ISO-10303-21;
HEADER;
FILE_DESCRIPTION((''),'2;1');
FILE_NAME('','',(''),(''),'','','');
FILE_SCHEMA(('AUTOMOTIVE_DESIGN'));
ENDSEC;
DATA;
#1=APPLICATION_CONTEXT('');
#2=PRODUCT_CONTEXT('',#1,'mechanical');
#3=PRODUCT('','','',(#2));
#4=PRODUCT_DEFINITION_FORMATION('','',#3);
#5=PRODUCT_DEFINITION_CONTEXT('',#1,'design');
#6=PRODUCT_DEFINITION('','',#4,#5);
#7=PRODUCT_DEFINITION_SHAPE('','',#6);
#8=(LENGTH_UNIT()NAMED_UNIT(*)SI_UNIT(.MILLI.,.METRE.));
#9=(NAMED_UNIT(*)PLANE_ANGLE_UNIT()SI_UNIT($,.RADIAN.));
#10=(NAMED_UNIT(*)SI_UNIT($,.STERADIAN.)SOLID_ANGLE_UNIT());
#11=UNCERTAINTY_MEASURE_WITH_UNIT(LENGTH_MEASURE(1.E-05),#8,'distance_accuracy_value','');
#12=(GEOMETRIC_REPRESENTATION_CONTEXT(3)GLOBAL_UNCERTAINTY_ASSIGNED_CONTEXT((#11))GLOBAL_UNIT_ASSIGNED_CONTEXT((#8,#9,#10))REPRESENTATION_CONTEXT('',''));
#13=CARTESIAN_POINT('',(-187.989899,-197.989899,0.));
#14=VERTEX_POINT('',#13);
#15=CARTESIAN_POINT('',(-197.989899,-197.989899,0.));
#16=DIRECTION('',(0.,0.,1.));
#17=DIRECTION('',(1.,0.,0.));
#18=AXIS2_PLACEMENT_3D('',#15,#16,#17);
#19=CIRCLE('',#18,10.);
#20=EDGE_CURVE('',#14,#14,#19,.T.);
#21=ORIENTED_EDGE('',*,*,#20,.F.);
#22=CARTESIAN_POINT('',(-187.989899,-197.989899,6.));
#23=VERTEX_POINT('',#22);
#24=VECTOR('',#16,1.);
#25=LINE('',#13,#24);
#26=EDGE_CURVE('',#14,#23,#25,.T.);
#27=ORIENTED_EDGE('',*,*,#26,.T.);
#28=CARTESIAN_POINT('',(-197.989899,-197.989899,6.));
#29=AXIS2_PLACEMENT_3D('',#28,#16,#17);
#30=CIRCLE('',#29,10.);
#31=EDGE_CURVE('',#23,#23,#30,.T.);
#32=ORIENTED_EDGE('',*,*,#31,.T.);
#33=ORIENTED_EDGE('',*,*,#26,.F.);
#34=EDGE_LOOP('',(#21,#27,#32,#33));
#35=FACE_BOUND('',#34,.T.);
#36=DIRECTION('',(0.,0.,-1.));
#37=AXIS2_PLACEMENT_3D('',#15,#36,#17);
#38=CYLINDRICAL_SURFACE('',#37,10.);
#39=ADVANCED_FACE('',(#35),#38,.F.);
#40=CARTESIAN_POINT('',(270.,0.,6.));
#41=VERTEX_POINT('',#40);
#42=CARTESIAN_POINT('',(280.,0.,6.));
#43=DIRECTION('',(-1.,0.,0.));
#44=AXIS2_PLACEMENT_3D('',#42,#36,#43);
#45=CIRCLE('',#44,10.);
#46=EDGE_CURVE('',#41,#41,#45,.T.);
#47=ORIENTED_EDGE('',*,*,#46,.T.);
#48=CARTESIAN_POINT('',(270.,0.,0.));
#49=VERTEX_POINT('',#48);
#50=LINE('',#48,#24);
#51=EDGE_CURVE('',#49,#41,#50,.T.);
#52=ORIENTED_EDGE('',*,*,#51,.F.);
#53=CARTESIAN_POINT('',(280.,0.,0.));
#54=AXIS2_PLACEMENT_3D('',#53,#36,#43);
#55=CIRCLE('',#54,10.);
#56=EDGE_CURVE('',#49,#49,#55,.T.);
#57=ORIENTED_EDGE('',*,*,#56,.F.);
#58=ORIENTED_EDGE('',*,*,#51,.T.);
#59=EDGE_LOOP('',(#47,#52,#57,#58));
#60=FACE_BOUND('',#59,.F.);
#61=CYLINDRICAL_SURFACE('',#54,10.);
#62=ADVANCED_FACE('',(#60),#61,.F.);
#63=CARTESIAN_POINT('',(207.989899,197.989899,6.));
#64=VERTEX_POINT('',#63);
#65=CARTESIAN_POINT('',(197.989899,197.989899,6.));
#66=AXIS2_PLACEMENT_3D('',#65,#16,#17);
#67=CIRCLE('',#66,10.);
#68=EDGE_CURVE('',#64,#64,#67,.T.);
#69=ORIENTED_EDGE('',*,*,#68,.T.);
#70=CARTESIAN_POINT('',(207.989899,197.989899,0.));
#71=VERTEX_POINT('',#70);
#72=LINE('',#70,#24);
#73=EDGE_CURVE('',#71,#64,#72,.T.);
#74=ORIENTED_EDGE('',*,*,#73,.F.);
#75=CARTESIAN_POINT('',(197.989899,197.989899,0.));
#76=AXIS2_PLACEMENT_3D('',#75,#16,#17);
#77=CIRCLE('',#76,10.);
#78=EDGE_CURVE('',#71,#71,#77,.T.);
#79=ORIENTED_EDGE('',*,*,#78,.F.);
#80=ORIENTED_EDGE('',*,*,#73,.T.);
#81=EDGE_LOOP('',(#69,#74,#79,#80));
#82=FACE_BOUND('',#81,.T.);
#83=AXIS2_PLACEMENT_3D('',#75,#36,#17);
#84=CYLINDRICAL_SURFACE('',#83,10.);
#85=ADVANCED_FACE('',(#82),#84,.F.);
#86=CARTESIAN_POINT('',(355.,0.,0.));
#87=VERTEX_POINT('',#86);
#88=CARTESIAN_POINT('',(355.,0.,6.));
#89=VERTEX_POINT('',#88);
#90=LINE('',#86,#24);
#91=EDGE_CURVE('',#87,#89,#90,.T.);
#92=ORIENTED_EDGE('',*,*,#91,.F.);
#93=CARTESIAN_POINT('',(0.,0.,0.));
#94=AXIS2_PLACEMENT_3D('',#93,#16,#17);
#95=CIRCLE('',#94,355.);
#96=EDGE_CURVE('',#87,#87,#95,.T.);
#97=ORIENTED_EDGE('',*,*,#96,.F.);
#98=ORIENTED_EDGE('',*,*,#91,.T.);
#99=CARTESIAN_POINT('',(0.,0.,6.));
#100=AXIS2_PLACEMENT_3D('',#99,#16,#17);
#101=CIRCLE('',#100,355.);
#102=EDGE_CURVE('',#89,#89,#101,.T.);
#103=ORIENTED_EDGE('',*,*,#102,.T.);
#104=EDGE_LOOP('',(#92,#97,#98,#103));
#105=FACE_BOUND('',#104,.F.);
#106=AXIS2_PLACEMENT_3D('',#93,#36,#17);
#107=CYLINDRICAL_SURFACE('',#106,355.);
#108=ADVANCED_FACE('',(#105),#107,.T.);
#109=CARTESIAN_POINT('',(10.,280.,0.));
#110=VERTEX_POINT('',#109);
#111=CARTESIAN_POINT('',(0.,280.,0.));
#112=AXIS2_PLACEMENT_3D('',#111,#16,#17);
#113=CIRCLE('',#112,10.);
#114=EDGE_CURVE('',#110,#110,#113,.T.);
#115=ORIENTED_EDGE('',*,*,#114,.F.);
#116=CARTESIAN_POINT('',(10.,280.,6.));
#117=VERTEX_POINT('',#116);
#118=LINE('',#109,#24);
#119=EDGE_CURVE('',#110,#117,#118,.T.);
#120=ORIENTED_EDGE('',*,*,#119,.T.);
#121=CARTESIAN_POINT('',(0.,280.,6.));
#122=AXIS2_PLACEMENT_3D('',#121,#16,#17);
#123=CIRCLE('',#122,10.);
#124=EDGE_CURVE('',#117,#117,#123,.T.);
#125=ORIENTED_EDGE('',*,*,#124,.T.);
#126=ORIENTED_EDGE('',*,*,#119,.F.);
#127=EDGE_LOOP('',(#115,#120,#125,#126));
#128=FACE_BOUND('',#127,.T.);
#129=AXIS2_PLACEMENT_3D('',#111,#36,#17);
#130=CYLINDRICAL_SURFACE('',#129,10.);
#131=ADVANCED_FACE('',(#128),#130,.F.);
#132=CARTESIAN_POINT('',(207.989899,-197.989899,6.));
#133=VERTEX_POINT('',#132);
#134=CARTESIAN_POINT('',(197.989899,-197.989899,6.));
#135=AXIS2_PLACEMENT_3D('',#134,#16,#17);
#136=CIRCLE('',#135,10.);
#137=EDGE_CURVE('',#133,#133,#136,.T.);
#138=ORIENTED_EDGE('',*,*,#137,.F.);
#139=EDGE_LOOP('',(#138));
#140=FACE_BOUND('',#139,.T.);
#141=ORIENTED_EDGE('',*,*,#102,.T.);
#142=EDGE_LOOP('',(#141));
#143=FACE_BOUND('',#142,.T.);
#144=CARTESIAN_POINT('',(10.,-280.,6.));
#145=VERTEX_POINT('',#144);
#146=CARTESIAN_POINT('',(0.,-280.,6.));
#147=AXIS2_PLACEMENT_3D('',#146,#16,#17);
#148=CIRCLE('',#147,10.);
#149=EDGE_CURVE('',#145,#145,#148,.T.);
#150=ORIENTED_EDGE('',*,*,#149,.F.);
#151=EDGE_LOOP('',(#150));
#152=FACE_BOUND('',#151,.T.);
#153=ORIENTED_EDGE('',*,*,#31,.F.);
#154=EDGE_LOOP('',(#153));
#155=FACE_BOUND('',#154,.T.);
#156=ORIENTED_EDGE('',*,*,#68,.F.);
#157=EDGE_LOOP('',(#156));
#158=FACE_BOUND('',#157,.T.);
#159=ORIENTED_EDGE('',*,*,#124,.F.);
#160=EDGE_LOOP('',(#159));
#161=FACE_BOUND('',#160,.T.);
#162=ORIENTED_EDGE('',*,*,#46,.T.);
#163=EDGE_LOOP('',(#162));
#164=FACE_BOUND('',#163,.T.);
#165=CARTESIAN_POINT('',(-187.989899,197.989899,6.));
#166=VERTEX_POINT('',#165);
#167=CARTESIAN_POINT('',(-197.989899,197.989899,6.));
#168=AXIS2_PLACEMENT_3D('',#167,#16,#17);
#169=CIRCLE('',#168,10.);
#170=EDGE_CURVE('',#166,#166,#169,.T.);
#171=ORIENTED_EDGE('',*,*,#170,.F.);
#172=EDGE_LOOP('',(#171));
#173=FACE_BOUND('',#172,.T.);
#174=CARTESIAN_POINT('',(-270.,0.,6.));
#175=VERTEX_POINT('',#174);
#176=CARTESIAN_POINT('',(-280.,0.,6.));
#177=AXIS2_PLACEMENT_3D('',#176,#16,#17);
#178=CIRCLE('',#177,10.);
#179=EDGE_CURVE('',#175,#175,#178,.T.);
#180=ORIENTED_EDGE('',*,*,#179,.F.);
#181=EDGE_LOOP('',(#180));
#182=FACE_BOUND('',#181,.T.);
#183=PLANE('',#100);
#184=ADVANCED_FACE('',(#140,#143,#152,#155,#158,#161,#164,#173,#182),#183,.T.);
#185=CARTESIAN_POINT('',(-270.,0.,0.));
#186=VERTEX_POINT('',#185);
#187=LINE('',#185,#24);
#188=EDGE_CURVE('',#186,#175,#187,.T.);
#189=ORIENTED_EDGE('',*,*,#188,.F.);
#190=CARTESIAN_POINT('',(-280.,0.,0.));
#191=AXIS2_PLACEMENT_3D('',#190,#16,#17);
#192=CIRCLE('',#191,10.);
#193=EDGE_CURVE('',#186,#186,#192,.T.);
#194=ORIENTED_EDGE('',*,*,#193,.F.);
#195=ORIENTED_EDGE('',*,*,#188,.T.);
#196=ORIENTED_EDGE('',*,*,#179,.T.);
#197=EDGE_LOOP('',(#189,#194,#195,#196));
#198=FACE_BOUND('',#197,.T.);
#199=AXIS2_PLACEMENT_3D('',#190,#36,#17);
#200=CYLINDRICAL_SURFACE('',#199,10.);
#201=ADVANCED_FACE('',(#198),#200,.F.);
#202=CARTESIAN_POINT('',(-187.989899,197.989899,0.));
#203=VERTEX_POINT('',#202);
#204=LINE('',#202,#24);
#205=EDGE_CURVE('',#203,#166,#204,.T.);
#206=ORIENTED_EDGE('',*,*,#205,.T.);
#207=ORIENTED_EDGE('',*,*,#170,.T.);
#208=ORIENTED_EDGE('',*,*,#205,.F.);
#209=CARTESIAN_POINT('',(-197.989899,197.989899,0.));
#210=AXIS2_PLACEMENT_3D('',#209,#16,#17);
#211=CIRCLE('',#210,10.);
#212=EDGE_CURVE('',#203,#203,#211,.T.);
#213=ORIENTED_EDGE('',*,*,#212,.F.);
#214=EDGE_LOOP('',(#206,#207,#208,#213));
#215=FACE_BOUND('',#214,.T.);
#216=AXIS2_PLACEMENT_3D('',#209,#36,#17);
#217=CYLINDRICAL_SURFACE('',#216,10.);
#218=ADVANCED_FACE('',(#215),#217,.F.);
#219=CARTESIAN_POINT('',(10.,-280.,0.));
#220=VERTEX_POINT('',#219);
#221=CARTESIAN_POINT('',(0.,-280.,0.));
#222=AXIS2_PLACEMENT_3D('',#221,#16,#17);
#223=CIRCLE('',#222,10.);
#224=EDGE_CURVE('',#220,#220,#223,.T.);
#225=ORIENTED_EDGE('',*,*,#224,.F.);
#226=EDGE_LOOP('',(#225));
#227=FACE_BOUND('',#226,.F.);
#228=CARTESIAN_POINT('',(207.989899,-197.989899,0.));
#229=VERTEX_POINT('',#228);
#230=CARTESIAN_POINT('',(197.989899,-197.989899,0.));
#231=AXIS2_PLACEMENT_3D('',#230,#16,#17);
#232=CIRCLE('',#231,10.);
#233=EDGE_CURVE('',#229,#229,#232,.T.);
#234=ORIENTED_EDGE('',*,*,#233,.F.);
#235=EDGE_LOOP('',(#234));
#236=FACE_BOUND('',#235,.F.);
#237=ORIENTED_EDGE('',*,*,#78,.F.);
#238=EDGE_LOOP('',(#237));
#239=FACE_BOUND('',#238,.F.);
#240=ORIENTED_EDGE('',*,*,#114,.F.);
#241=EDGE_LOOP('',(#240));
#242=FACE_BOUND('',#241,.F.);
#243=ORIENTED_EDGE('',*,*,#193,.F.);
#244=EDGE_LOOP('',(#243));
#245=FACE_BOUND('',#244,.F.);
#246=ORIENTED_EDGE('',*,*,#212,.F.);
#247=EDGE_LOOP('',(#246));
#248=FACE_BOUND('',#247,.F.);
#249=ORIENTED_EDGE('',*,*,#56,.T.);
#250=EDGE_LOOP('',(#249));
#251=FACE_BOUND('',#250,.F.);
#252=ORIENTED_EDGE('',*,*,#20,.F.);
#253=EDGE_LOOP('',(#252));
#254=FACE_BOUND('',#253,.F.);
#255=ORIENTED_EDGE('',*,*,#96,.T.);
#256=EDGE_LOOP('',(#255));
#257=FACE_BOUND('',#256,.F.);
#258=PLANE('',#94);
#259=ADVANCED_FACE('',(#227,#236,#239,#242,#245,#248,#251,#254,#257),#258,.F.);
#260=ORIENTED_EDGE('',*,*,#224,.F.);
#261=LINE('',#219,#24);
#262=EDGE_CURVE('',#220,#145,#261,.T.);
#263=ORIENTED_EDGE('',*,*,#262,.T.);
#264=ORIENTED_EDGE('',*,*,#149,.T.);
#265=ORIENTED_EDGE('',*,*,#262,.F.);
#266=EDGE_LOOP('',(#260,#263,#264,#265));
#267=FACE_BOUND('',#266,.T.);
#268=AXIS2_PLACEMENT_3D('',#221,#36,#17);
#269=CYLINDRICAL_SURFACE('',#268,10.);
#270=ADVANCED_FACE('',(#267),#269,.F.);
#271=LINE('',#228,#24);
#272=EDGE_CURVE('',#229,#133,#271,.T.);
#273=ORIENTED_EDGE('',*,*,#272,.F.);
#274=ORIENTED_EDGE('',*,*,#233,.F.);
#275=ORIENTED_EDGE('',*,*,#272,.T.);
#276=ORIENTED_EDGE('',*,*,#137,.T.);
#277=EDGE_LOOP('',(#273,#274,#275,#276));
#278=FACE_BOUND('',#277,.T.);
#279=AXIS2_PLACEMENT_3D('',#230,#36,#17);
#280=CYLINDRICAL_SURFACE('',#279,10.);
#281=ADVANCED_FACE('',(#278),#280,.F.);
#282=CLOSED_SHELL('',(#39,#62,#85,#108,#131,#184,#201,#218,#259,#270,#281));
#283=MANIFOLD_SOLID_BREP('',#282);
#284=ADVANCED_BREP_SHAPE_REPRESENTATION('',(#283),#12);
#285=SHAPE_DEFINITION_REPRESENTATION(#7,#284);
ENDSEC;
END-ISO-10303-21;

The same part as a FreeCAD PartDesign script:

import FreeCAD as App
import Part
import Sketcher

V = App.Vector
Q = App.Units.Quantity

doc = App.newDocument("Part")
body = doc.addObject("PartDesign::Body", "Body")

sketch1 = body.newObject("Sketcher::SketchObject", "Sketch")
sketch1.AttachmentSupport = (doc.getObject("XY_Plane"), [""])
sketch1.MapMode = "FlatFace"
sketch1.addGeometry(Part.Circle(V(0, 0, 0), V(0, 0, 1), 355), False)
sketch1.addGeometry(Part.Circle(V(-198, -198, 0), V(0, 0, 1), 10), False)
sketch1.addGeometry(Part.Circle(V(0, -280, 0), V(0, 0, 1), 10), False)
sketch1.addGeometry(Part.Circle(V(198, -198, 0), V(0, 0, 1), 10), False)
sketch1.addGeometry(Part.Circle(V(-280, 0, 0), V(0, 0, 1), 10), False)
sketch1.addGeometry(Part.Circle(V(-198, 198, 0), V(0, 0, 1), 10), False)
sketch1.addGeometry(Part.Circle(V(280, 0, 0), V(0, 0, 1), 10), False)
sketch1.addGeometry(Part.Circle(V(0, 280, 0), V(0, 0, 1), 10), False)
sketch1.addGeometry(Part.Circle(V(198, 198, 0), V(0, 0, 1), 10), False)
sketch1.addConstraint(Sketcher.Constraint("Coincident", 0, 3, -1, 1))
sketch1.addConstraint(Sketcher.Constraint("Equal", 1, 2))
sketch1.addConstraint(Sketcher.Constraint("Equal", 2, 3))
sketch1.addConstraint(Sketcher.Constraint("Equal", 3, 4))
sketch1.addConstraint(Sketcher.Constraint("Equal", 4, 5))
sketch1.addConstraint(Sketcher.Constraint("Equal", 5, 6))
sketch1.addConstraint(Sketcher.Constraint("Equal", 6, 7))
sketch1.addConstraint(Sketcher.Constraint("Equal", 7, 8))
sketch1.addConstraint(Sketcher.Constraint("Symmetric", 3, 3, 5, 3, -1, 1))
sketch1.addConstraint(Sketcher.Constraint("Symmetric", 4, 3, 6, 3, -1, 1))
sketch1.addConstraint(Sketcher.Constraint("Symmetric", 2, 3, 7, 3, -1, 1))
sketch1.addConstraint(Sketcher.Constraint("Symmetric", 1, 3, 8, 3, -1, 1))
sketch1.addConstraint(Sketcher.Constraint("Symmetric", 1, 3, 3, 3, -2))
sketch1.addConstraint(Sketcher.Constraint("PointOnObject", 2, 3, -2))
sketch1.addConstraint(Sketcher.Constraint("PointOnObject", 4, 3, -1))
sketch1.addConstraint(Sketcher.Constraint("Diameter", 0, Q("710 mm")))
sketch1.addConstraint(Sketcher.Constraint("Diameter", 1, Q("20 mm")))
sketch1.addConstraint(Sketcher.Constraint("DistanceY", 2, 3, -1, 1, Q("280 mm")))
sketch1.addConstraint(Sketcher.Constraint("DistanceX", 4, 3, -1, 1, Q("280 mm")))
sketch1.addConstraint(Sketcher.Constraint("DistanceX", 1, 3, -1, 1, Q("197.989899 mm")))
sketch1.addConstraint(Sketcher.Constraint("DistanceY", 1, 3, -1, 1, Q("197.989899 mm")))
pad1 = body.newObject("PartDesign::Pad", "Pad")
pad1.Profile = sketch1
pad1.Length = 6

doc.recompute()
